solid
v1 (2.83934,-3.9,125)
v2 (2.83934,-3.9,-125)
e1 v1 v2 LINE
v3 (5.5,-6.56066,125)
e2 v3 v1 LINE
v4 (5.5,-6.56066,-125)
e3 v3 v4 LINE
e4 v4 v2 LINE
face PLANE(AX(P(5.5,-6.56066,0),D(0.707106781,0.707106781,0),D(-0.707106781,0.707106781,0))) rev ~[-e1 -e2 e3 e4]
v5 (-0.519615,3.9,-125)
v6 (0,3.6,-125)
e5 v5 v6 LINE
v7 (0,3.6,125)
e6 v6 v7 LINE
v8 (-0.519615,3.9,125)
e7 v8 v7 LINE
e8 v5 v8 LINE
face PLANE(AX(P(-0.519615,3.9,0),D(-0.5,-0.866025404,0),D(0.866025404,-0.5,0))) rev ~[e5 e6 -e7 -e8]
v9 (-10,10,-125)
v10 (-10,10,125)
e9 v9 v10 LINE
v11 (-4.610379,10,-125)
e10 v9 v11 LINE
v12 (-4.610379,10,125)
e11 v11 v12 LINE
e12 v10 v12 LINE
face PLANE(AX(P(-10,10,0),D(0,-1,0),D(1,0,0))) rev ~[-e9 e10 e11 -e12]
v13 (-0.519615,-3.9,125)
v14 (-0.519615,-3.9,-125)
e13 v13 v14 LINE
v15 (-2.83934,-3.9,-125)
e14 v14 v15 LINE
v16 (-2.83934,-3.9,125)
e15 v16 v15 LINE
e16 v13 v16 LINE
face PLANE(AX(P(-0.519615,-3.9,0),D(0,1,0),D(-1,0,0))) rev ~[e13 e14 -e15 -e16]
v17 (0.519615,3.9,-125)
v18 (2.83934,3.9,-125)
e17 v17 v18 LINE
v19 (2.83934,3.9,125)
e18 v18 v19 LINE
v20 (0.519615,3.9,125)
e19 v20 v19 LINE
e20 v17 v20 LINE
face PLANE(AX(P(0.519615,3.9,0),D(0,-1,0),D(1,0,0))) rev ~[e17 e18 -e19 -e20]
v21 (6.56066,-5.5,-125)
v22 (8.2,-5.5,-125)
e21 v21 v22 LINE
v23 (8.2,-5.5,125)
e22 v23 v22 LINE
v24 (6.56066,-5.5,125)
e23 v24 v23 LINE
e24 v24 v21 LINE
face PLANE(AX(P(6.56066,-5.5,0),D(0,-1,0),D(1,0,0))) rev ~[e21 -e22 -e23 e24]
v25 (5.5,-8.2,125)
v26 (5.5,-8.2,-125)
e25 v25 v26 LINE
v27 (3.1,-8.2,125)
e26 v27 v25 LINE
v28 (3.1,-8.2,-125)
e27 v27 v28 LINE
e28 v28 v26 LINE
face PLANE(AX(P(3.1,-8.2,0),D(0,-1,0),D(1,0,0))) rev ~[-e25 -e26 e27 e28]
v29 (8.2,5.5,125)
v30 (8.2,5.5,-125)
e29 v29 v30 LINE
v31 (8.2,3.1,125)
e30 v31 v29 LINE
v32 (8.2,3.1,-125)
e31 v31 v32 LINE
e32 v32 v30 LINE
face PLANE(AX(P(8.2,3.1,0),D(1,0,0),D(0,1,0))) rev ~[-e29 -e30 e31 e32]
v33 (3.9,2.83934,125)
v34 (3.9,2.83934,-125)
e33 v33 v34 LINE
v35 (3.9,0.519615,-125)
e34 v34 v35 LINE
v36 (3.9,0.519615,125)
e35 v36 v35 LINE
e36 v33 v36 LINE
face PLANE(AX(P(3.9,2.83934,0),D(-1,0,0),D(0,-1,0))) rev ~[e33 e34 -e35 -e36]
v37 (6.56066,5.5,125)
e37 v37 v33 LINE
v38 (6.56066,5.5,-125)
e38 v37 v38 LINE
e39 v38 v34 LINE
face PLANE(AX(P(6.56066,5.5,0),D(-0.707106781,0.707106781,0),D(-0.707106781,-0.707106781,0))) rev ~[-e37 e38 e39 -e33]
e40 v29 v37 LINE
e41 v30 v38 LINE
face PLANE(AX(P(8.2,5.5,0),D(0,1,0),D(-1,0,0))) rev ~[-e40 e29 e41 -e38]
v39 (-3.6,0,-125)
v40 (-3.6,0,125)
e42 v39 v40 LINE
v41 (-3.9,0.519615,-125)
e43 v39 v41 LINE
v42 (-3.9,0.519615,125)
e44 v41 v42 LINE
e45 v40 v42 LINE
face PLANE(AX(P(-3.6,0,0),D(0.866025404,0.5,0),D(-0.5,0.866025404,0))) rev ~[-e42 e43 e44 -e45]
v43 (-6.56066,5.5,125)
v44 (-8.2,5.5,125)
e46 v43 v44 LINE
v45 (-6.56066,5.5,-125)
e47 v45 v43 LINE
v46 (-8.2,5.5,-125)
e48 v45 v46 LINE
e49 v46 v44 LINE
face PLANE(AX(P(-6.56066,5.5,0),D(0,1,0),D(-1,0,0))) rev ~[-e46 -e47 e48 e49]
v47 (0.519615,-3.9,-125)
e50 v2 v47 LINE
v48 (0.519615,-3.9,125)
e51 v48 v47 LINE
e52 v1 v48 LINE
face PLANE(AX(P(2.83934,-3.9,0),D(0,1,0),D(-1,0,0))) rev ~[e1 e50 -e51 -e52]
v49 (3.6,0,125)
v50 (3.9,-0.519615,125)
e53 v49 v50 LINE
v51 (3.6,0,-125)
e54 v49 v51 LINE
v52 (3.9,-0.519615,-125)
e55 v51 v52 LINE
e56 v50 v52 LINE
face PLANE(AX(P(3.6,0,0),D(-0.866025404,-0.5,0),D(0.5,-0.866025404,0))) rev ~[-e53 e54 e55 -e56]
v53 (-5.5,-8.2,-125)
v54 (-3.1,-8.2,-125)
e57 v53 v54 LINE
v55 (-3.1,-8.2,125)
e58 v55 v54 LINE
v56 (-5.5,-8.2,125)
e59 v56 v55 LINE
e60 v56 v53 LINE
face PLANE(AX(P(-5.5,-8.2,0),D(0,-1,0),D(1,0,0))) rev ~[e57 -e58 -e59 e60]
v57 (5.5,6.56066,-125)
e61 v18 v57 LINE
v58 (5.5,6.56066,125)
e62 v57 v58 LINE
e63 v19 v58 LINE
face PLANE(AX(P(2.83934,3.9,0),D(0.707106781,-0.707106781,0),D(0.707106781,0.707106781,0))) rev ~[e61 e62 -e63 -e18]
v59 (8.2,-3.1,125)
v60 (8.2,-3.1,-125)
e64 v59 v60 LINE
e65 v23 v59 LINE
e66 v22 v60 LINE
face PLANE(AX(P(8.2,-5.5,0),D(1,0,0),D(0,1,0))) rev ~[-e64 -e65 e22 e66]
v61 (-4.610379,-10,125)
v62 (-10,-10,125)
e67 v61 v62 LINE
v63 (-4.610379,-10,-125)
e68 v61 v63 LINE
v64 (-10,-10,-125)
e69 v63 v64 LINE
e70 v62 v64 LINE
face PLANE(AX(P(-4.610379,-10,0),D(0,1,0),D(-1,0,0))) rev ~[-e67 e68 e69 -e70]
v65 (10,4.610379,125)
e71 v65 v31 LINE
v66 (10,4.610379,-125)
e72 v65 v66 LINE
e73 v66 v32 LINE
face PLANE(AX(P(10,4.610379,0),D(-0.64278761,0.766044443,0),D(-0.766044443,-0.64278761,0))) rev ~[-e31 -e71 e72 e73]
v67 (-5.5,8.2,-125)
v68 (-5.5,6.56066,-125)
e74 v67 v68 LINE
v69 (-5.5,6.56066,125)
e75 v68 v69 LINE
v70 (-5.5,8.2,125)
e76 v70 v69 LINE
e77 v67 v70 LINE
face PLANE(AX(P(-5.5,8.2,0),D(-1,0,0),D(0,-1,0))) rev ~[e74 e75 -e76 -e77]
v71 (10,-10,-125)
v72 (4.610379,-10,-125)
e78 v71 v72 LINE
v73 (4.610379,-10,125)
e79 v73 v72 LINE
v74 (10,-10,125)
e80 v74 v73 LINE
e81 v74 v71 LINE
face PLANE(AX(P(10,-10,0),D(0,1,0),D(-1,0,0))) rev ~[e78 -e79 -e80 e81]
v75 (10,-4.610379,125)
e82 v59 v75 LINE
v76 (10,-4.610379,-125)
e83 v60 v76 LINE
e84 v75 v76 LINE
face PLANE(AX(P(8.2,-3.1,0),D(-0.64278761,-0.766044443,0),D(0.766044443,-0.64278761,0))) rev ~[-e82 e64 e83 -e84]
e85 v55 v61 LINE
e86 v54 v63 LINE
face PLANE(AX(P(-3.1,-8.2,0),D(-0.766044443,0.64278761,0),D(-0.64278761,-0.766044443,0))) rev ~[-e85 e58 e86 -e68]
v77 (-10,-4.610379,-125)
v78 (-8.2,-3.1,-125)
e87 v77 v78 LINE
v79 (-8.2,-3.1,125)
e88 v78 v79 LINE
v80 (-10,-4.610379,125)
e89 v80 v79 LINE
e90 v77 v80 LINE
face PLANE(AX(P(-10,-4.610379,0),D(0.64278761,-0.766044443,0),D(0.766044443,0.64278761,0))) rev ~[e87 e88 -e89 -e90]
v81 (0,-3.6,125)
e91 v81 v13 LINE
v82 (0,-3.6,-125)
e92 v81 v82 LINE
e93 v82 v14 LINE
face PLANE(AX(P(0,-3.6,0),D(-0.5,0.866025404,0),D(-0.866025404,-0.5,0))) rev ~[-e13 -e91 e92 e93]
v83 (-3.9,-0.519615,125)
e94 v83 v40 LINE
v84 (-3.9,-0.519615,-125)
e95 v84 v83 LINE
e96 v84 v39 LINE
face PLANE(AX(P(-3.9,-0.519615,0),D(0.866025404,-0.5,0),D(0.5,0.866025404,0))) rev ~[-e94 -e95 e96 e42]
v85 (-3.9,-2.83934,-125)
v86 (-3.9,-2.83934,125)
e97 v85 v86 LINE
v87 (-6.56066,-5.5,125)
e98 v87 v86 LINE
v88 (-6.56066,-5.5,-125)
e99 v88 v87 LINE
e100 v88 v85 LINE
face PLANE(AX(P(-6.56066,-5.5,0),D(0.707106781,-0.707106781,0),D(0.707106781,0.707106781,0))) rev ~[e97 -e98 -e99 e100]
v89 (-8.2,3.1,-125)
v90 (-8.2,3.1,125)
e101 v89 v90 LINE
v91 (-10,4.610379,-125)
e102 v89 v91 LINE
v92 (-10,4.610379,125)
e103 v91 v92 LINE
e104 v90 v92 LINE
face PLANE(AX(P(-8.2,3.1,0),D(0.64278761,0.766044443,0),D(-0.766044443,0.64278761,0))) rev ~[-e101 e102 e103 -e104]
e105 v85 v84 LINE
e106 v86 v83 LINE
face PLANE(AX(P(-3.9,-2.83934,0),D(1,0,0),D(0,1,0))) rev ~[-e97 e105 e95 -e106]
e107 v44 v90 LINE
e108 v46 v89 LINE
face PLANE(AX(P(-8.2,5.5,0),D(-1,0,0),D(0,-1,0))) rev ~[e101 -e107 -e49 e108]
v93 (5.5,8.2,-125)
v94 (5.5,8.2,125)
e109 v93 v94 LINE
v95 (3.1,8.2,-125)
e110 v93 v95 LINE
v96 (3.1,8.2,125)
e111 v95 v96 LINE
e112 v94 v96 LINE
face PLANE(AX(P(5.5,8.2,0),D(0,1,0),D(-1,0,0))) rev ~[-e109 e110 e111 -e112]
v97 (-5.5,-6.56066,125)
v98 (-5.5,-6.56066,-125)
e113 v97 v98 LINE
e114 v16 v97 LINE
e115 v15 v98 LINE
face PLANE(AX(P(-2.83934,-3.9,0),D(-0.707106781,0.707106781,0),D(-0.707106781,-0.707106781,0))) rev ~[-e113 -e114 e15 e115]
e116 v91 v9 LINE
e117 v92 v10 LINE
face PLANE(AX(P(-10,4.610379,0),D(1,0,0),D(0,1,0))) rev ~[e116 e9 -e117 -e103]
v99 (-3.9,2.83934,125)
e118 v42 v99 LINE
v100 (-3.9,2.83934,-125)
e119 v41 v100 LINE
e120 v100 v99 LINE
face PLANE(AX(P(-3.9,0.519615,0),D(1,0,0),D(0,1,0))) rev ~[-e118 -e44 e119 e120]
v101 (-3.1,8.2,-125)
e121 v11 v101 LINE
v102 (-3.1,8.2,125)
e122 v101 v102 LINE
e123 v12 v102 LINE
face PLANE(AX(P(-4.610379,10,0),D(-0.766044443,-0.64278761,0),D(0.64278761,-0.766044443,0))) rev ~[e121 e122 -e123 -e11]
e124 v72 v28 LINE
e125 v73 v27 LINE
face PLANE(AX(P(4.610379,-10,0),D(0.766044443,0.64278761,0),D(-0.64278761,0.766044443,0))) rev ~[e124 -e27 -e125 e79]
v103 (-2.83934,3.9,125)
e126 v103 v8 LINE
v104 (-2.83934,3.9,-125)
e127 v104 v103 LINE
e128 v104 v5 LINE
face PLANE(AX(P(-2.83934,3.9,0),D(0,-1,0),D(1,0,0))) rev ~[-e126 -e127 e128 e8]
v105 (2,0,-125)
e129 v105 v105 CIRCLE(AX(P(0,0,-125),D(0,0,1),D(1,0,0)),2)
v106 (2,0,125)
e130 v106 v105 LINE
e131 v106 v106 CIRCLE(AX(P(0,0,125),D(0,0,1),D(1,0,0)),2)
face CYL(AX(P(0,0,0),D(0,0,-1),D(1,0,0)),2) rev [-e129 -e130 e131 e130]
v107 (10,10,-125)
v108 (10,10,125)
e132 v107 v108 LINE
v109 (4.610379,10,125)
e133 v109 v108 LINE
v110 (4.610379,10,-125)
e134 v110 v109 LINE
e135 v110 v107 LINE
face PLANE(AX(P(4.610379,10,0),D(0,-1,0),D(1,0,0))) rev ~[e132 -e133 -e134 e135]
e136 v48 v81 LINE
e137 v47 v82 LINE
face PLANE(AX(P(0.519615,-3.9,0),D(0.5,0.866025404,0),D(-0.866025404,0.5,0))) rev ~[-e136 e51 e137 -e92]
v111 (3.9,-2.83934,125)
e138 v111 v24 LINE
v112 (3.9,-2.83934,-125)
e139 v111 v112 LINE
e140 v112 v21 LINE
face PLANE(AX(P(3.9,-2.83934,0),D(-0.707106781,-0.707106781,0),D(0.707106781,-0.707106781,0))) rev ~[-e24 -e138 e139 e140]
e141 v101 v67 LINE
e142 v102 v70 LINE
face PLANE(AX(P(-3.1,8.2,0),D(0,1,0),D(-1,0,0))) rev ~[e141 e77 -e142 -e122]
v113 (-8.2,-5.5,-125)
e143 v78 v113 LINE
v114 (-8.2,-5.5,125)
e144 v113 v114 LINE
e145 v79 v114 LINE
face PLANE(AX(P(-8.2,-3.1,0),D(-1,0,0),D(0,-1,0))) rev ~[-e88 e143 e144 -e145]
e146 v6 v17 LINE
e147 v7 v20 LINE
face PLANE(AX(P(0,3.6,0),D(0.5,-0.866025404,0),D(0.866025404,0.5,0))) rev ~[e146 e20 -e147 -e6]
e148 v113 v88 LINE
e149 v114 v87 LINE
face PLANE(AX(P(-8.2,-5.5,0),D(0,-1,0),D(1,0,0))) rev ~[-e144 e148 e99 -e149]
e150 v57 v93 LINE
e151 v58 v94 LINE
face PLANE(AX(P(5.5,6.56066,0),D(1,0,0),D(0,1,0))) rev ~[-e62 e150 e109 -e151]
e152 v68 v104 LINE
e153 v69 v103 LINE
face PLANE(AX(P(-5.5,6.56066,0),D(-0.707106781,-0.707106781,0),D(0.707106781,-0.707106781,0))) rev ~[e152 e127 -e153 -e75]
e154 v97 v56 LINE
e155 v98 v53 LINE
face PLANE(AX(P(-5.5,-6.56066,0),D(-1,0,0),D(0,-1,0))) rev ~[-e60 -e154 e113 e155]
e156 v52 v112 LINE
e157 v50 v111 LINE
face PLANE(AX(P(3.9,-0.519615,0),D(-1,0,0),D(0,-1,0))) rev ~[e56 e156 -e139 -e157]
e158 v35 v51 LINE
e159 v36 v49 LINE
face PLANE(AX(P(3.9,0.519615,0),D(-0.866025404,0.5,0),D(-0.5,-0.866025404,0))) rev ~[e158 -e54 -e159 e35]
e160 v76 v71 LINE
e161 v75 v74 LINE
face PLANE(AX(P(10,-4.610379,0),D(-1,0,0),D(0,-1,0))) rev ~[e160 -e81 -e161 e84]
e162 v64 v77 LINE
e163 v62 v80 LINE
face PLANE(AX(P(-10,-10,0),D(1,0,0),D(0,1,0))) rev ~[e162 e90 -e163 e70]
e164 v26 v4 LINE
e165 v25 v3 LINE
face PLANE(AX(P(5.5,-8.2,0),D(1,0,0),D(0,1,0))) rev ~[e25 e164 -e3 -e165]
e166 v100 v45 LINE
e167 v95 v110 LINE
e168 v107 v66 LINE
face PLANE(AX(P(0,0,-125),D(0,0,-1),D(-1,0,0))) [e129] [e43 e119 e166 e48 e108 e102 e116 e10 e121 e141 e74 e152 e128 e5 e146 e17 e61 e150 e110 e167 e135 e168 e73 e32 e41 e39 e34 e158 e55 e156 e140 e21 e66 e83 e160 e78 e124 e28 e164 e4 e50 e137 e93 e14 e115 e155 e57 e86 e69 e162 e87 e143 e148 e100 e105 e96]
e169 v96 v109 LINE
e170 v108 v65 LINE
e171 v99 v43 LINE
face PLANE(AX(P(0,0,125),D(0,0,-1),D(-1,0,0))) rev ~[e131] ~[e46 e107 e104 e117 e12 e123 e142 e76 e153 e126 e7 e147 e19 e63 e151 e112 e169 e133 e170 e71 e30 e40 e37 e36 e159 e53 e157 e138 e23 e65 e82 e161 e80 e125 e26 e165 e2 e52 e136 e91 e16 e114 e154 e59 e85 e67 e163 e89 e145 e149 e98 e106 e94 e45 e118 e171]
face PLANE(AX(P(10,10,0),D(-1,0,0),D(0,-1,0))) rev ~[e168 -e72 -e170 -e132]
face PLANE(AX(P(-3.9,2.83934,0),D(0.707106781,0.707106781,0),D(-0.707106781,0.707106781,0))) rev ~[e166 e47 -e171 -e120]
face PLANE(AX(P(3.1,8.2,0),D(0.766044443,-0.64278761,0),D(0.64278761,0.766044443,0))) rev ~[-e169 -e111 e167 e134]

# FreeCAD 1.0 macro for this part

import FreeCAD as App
import Part
import Sketcher
Q = App.Units.Quantity


def add_polygon(sketch, points):
    """Adds a closed chain of lines whose ends are joined by coincident constraints."""
    first, n = sketch.GeometryCount, len(points)
    for a, b in zip(points, points[1:] + points[:1]):
        sketch.addGeometry(Part.LineSegment(App.Vector(*a, 0), App.Vector(*b, 0)), False)
    for i in range(n):
        sketch.addConstraint(Sketcher.Constraint("Coincident", first + i, 2, first + (i + 1) % n, 1))

doc = App.newDocument("Part")
body = doc.addObject("PartDesign::Body", "Body")

# Sketch on XY plane
sketch1 = body.newObject("Sketcher::SketchObject", "Sketch")
sketch1.AttachmentSupport = (doc.getObject("XY_Plane"), [""])
sketch1.MapMode = "FlatFace"
add_polygon(sketch1, [(10, 4.6), (10, 10), (4.6, 10), (3.1, 8.2), (5.5, 8.2), (5.5, 6.6), (2.8, 3.9), (0.5, 3.9), (0, 3.6), (-0.5, 3.9), (-2.8, 3.9), (-5.5, 6.6), (-5.5, 8.2), (-3.1, 8.2), (-4.6, 10), (-10, 10), (-10, 4.6), (-8.2, 3.1), (-8.2, 5.5), (-6.6, 5.5), (-3.9, 2.8), (-3.9, 0.5), (-3.6, 0), (-3.9, -0.5), (-3.9, -2.8), (-6.6, -5.5), (-8.2, -5.5), (-8.2, -3.1), (-10, -4.6), (-10, -10), (-4.6, -10), (-3.1, -8.2), (-5.5, -8.2), (-5.5, -6.6), (-2.8, -3.9), (-0.5, -3.9), (0, -3.6), (0.5, -3.9), (2.8, -3.9), (5.5, -6.6), (5.5, -8.2), (3.1, -8.2), (4.6, -10), (10, -10), (10, -4.6), (8.2, -3.1), (8.2, -5.5), (6.6, -5.5), (3.9, -2.8), (3.9, -0.5), (3.6, 0), (3.9, 0.5), (3.9, 2.8), (6.6, 5.5), (8.2, 5.5), (8.2, 3.1)])  # lines 0-55
sketch1.addGeometry(Part.Circle(App.Vector(0, 0, 0), App.Vector(0, 0, 1), 2), False)  # 56
sketch1.addConstraint([
    Sketcher.Constraint("Vertical", 0),
    Sketcher.Constraint("Horizontal", 1),
    Sketcher.Constraint("Horizontal", 3),
    Sketcher.Constraint("Vertical", 4),
    Sketcher.Constraint("Horizontal", 6),
    Sketcher.Constraint("Horizontal", 9),
    Sketcher.Constraint("Vertical", 11),
    Sketcher.Constraint("Horizontal", 12),
    Sketcher.Constraint("Horizontal", 14),
    Sketcher.Constraint("Vertical", 15),
    Sketcher.Constraint("Vertical", 17),
    Sketcher.Constraint("Horizontal", 18),
    Sketcher.Constraint("Vertical", 20),
    Sketcher.Constraint("Vertical", 23),
    Sketcher.Constraint("Horizontal", 25),
    Sketcher.Constraint("Vertical", 26),
    Sketcher.Constraint("Vertical", 28),
    Sketcher.Constraint("Horizontal", 29),
    Sketcher.Constraint("Horizontal", 31),
    Sketcher.Constraint("Vertical", 32),
    Sketcher.Constraint("Horizontal", 34),
    Sketcher.Constraint("Horizontal", 37),
    Sketcher.Constraint("Vertical", 39),
    Sketcher.Constraint("Horizontal", 40),
    Sketcher.Constraint("Horizontal", 42),
    Sketcher.Constraint("Vertical", 43),
    Sketcher.Constraint("Vertical", 45),
    Sketcher.Constraint("Horizontal", 46),
    Sketcher.Constraint("Vertical", 48),
    Sketcher.Constraint("Vertical", 51),
    Sketcher.Constraint("Horizontal", 53),
    Sketcher.Constraint("Vertical", 54),
    Sketcher.Constraint("Coincident", 56, 3, -1, 1),
    Sketcher.Constraint("Symmetric", 0, 2, 28, 2, -1, 1),
    Sketcher.Constraint("Symmetric", 2, 2, 30, 2, -1, 1),
    Sketcher.Constraint("Symmetric", 4, 2, 32, 2, -1, 1),
    Sketcher.Constraint("Symmetric", 5, 2, 33, 2, -1, 1),
    Sketcher.Constraint("Symmetric", 7, 2, 35, 2, -1, 1),
    Sketcher.Constraint("Symmetric", 8, 2, 36, 2, -1, 1),
    Sketcher.Constraint("Symmetric", 10, 2, 38, 2, -1, 1),
    Sketcher.Constraint("Symmetric", 12, 2, 40, 2, -1, 1),
    Sketcher.Constraint("Symmetric", 13, 2, 41, 2, -1, 1),
    Sketcher.Constraint("Symmetric", 15, 2, 43, 2, -1, 1),
    Sketcher.Constraint("Symmetric", 16, 2, 44, 2, -1, 1),
    Sketcher.Constraint("Symmetric", 18, 2, 46, 2, -1, 1),
    Sketcher.Constraint("Symmetric", 19, 2, 47, 2, -1, 1),
    Sketcher.Constraint("Symmetric", 21, 2, 49, 2, -1, 1),
    Sketcher.Constraint("Symmetric", 22, 2, 50, 2, -1, 1),
    Sketcher.Constraint("Symmetric", 24, 2, 52, 2, -1, 1),
    Sketcher.Constraint("Symmetric", 26, 2, 54, 2, -1, 1),
    Sketcher.Constraint("Symmetric", 6, 2, 8, 2, -2),
    Sketcher.Constraint("Symmetric", 4, 2, 10, 2, -2),
    Sketcher.Constraint("Symmetric", 2, 2, 12, 2, -2),
    Sketcher.Constraint("Symmetric", 1, 2, 13, 2, -2),
    Sketcher.Constraint("Symmetric", 27, 2, 43, 2, -2),
    Sketcher.Constraint("Symmetric", 26, 2, 44, 2, -2),
    Sketcher.Constraint("Symmetric", 24, 2, 46, 2, -2),
    Sketcher.Constraint("Symmetric", 23, 2, 47, 2, -2),
    Sketcher.Constraint("PointOnObject", 7, 2, -2),
    Sketcher.Constraint("PointOnObject", 21, 2, -1),
    Sketcher.Constraint("Perpendicular", 5, 10),
    Sketcher.Constraint("Perpendicular", 2, 16),
    Sketcher.Constraint("Parallel", 10, 19),
    Sketcher.Constraint("Perpendicular", 7, 21),
    Sketcher.Constraint("Perpendicular", 8, 22),
    Sketcher.Constraint("Perpendicular", 19, 24),
    Sketcher.Constraint("Perpendicular", 16, 30),
    Sketcher.Constraint("Perpendicular", 21, 35),
    Sketcher.Constraint("Perpendicular", 33, 38),
    Sketcher.Constraint("Perpendicular", 35, 49),
    Sketcher.Constraint("Perpendicular", 47, 52),
    Sketcher.Constraint("Perpendicular", 41, 55),
    Sketcher.Constraint("Equal", 42, 0),
    Sketcher.Constraint("Equal", 53, 4),
    Sketcher.Constraint("Equal", 40, 17),
    Sketcher.Constraint("Equal", 37, 20),
    Sketcher.Constraint("Equal", 13, 16),
    Sketcher.Constraint("Equal", 10, 19),
    Sketcher.Constraint("Equal", 8, 21),
    Sketcher.Constraint("Diameter", 56, 4.0),
    Sketcher.Constraint("Angle", 2, Q("-130 deg")),
    Sketcher.Constraint("Angle", 7, Q("-150 deg")),
    Sketcher.Constraint("DistanceX", 3, 1, 3, 2, 2.4),
    Sketcher.Constraint("DistanceX", -1, 1, 0, 2, 10.0),
    Sketcher.Constraint("Distance", 7, 0.6),
    Sketcher.Constraint("DistanceX", -1, 1, 2, 2, 3.1),
    Sketcher.Constraint("DistanceY", -1, 1, 2, 2, 8.2),
    Sketcher.Constraint("DistanceY", -1, 1, 5, 2, 3.9),
    Sketcher.Constraint("DistanceX", 18, 1, 18, 2, 1.63934),
])
pad1 = body.newObject("PartDesign::Pad", "Pad")
pad1.Profile = sketch1
pad1.Length = 250
pad1.Midplane = True

doc.recompute()
